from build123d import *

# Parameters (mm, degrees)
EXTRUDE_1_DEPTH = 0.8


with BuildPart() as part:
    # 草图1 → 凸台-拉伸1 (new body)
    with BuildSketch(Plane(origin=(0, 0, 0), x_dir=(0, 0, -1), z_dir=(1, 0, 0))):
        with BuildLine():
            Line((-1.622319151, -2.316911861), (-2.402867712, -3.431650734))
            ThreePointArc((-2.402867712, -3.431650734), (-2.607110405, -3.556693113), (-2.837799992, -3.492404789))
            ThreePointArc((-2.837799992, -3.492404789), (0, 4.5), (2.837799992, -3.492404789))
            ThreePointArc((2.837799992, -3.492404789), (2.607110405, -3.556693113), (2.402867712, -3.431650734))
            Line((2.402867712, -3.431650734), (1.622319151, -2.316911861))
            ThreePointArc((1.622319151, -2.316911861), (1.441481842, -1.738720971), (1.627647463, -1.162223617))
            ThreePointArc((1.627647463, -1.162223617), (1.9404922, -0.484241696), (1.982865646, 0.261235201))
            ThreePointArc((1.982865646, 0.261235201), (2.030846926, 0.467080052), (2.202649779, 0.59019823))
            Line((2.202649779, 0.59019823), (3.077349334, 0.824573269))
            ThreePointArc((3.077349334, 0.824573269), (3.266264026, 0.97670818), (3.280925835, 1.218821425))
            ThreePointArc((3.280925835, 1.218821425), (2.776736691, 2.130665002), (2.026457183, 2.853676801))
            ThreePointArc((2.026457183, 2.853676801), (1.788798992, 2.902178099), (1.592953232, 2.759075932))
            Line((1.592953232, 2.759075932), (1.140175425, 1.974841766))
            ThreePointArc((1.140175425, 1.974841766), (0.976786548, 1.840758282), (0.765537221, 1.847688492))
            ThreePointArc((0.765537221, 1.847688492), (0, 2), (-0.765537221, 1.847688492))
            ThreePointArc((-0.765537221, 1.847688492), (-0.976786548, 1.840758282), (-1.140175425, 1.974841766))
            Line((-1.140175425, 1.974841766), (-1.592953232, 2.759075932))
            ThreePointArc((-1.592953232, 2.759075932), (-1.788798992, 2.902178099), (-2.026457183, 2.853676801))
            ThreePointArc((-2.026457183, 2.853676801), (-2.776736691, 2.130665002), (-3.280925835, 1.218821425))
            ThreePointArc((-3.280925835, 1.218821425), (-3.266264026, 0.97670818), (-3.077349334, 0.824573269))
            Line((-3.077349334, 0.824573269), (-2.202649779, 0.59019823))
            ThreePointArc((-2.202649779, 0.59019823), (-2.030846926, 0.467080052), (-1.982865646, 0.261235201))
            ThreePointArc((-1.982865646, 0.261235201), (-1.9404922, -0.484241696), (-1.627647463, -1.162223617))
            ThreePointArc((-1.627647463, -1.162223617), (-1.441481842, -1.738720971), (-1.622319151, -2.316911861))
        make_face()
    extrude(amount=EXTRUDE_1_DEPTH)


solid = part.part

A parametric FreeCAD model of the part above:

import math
import FreeCAD as App
import Part
import Sketcher
from FreeCAD import Vector
Q = App.Units.Quantity

doc = App.newDocument("Part")
body = doc.addObject("PartDesign::Body", "Body")

sketch1 = doc.addObject("Sketcher::SketchObject", "Sketch")
body.addObject(sketch1)
sketch1.AttachmentSupport = (doc.YZ_Plane, [""])
sketch1.MapMode = "FlatFace"
sketch1.addGeometry([
    Part.LineSegment(Vector(-3.43, 2.4, 0), Vector(-2.32, 1.62, 0)),
    Part.ArcOfCircle(Part.Circle(Vector(-1.74, 2.44, 0), Vector(0, 0, 1), 1), math.radians(-125), math.radians(-54)),
    Part.ArcOfCircle(Part.Circle(Vector(0, 0, 0), Vector(0, 0, 1), 2), math.radians(82), math.radians(126)),
    Part.ArcOfCircle(Part.Circle(Vector(0.3, 2.28, 0), Vector(0, 0, 1), 0.3), math.radians(-98), math.radians(-15)),
    Part.LineSegment(Vector(0.59, 2.2, 0), Vector(0.82, 3.08, 0)),
    Part.ArcOfCircle(Part.Circle(Vector(1.11, 3, 0), Vector(0, 0, 1), 0.3), math.radians(70), math.radians(165)),
    Part.ArcOfCircle(Part.Circle(Vector(0, 0, 0), Vector(0, 0, 1), 3.5), math.radians(35), math.radians(70)),
    Part.ArcOfCircle(Part.Circle(Vector(2.61, 1.85, 0), Vector(0, 0, 1), 0.3), math.radians(-60), math.radians(35)),
    Part.LineSegment(Vector(2.76, 1.59, 0), Vector(1.97, 1.14, 0)),
    Part.ArcOfCircle(Part.Circle(Vector(2.12, 0.88, 0), Vector(0, 0, 1), 0.3), math.radians(120), math.radians(203)),
    Part.ArcOfCircle(Part.Circle(Vector(0, 0, 0), Vector(0, 0, 1), 2), math.radians(-23), math.radians(23)),
    Part.ArcOfCircle(Part.Circle(Vector(2.12, -0.88, 0), Vector(0, 0, 1), 0.3), math.radians(157), math.radians(240)),
    Part.LineSegment(Vector(1.97, -1.14, 0), Vector(2.76, -1.59, 0)),
    Part.ArcOfCircle(Part.Circle(Vector(2.61, -1.85, 0), Vector(0, 0, 1), 0.3), math.radians(-35), math.radians(60)),
    Part.ArcOfCircle(Part.Circle(Vector(0, 0, 0), Vector(0, 0, 1), 3.5), math.radians(-70), math.radians(-35)),
    Part.ArcOfCircle(Part.Circle(Vector(1.11, -3, 0), Vector(0, 0, 1), 0.3), math.radians(-165), math.radians(-70)),
    Part.LineSegment(Vector(0.82, -3.08, 0), Vector(0.59, -2.2, 0)),
    Part.ArcOfCircle(Part.Circle(Vector(0.3, -2.28, 0), Vector(0, 0, 1), 0.3), math.radians(15), math.radians(98)),
    Part.ArcOfCircle(Part.Circle(Vector(0, 0, 0), Vector(0, 0, 1), 2), math.radians(-126), math.radians(-82)),
    Part.ArcOfCircle(Part.Circle(Vector(-1.74, -2.44, 0), Vector(0, 0, 1), 1), math.radians(54), math.radians(125)),
    Part.LineSegment(Vector(-2.32, -1.62, 0), Vector(-3.43, -2.4, 0)),
    Part.ArcOfCircle(Part.Circle(Vector(-3.26, -2.65, 0), Vector(0, 0, 1), 0.3), math.radians(125), math.radians(219)),
    Part.ArcOfCircle(Part.Circle(Vector(0, 0, 0), Vector(0, 0, 1), 4.5), math.radians(-141), math.radians(141)),
    Part.ArcOfCircle(Part.Circle(Vector(-3.26, 2.65, 0), Vector(0, 0, 1), 0.3), math.radians(141), math.radians(235)),
], False)
sketch1.addConstraint([
    Sketcher.Constraint("Tangent", 0, 2, 1, 1),
    Sketcher.Constraint("Tangent", 1, 2, 2, 2),
    Sketcher.Constraint("Tangent", 2, 1, 3, 1),
    Sketcher.Constraint("Tangent", 3, 2, 4, 1),
    Sketcher.Constraint("Tangent", 4, 2, 5, 2),
    Sketcher.Constraint("Tangent", 5, 1, 6, 2),
    Sketcher.Constraint("Tangent", 6, 1, 7, 2),
    Sketcher.Constraint("Tangent", 7, 1, 8, 1),
    Sketcher.Constraint("Tangent", 8, 2, 9, 1),
    Sketcher.Constraint("Tangent", 9, 2, 10, 2),
    Sketcher.Constraint("Tangent", 10, 1, 11, 1),
    Sketcher.Constraint("Tangent", 11, 2, 12, 1),
    Sketcher.Constraint("Tangent", 12, 2, 13, 2),
    Sketcher.Constraint("Tangent", 13, 1, 14, 2),
    Sketcher.Constraint("Tangent", 14, 1, 15, 2),
    Sketcher.Constraint("Tangent", 15, 1, 16, 1),
    Sketcher.Constraint("Tangent", 16, 2, 17, 1),
    Sketcher.Constraint("Tangent", 17, 2, 18, 2),
    Sketcher.Constraint("Tangent", 18, 1, 19, 1),
    Sketcher.Constraint("Tangent", 19, 2, 20, 1),
    Sketcher.Constraint("Tangent", 20, 2, 21, 1),
    Sketcher.Constraint("Tangent", 21, 2, 22, 1),
    Sketcher.Constraint("Tangent", 22, 2, 23, 1),
    Sketcher.Constraint("Tangent", 23, 2, 0, 1),
    Sketcher.Constraint("Coincident", 2, 3, -1, 1),
    Sketcher.Constraint("Coincident", 6, 3, -1, 1),
    Sketcher.Constraint("Coincident", 10, 3, -1, 1),
    Sketcher.Constraint("Coincident", 14, 3, -1, 1),
    Sketcher.Constraint("Coincident", 18, 3, -1, 1),
    Sketcher.Constraint("Coincident", 22, 3, -1, 1),
    Sketcher.Constraint("Equal", 3, 5),
    Sketcher.Constraint("Equal", 5, 7),
    Sketcher.Constraint("Equal", 7, 9),
    Sketcher.Constraint("Equal", 2, 10),
    Sketcher.Constraint("Equal", 9, 11),
    Sketcher.Constraint("Equal", 11, 13),
    Sketcher.Constraint("Equal", 6, 14),
    Sketcher.Constraint("Equal", 13, 15),
    Sketcher.Constraint("Equal", 15, 17),
    Sketcher.Constraint("Equal", 10, 18),
    Sketcher.Constraint("Equal", 1, 19),
    Sketcher.Constraint("Equal", 17, 21),
    Sketcher.Constraint("Equal", 21, 23),
    Sketcher.Constraint("Symmetric", 8, 2, 11, 2, -1),
    Sketcher.Constraint("Symmetric", 4, 2, 15, 1, -1),
    Sketcher.Constraint("Symmetric", 0, 2, 19, 2, -1),
    Sketcher.Constraint("Equal", 4, 8),
    Sketcher.Constraint("Radius", 1, 1.0),
    Sketcher.Constraint("Radius", 2, 2.0),
    Sketcher.Constraint("Radius", 3, 0.3),
    Sketcher.Constraint("Radius", 6, 3.5),
    Sketcher.Constraint("Radius", 22, 4.5),
    Sketcher.Constraint("Angle", 0, Q("-35 deg")),
    Sketcher.Constraint("Angle", 4, Q("75 deg")),
    Sketcher.Constraint("Angle", 8, Q("-150 deg")),
    Sketcher.Constraint("DistanceX", 21, 3, 17, 3, 3.559998),
    Sketcher.Constraint("DistanceX", -1, 1, 3, 2, 0.590198),
])
pad1 = doc.addObject("PartDesign::Pad", "Pad")
body.addObject(pad1)
pad1.Profile = sketch1
pad1.Length = 0.8

doc.recompute()
